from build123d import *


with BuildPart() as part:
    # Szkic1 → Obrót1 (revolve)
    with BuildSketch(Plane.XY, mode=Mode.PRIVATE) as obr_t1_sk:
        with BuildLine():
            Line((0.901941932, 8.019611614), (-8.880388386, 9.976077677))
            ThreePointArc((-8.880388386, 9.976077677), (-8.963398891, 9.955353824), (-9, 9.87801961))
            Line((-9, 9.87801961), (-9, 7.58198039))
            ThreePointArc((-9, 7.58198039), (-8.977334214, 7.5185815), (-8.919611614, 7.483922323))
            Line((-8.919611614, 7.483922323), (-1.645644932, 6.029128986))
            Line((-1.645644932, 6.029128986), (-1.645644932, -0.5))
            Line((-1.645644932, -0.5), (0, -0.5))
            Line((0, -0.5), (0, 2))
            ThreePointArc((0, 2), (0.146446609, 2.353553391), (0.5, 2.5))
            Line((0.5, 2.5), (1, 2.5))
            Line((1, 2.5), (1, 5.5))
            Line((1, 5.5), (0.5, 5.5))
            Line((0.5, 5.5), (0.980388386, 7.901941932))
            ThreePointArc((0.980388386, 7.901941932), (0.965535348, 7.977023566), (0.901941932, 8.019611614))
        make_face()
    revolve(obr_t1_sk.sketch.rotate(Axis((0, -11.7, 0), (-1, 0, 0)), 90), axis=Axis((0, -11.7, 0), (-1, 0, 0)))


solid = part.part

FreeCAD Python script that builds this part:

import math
import FreeCAD as App
import Part
import Sketcher
from FreeCAD import Vector

doc = App.newDocument("Part")
params = doc.addObject("Spreadsheet::Sheet", "Params")
for row, (alias, value) in enumerate([
    ("sketch1_radius", "0.1 mm"),
    ("sketch1_radius2", "0.5 mm"),
    ("sketch1_width", "10 mm"),
    ("sketch1_height", "3 mm"),
    ("sketch1_width2", "0.5 mm"),
    ("revolution_angle", "360 deg"),
], start=1):
    params.set(f"A{row}", alias)
    params.set(f"B{row}", "=" + value)
    params.setAlias(f"B{row}", alias)

body = doc.addObject("PartDesign::Body", "Body")

# Sketch on XY plane
sketch1 = body.newObject("Sketcher::SketchObject", "Sketch")
sketch1.AttachmentSupport = (doc.getObject("XY_Plane"), [""])
sketch1.MapMode = "FlatFace"
sketch1.addGeometry([
    Part.LineSegment(Vector(0.9, 8.02, 0), Vector(-8.88, 9.98, 0)),  # 0
    Part.ArcOfCircle(Part.Circle(Vector(-8.9, 9.88, 0), Vector(0, 0, 1), 0.1), math.radians(79), math.radians(180)),  # 1
    Part.LineSegment(Vector(-9, 9.88, 0), Vector(-9, 7.58, 0)),  # 2
    Part.ArcOfCircle(Part.Circle(Vector(-8.9, 7.58, 0), Vector(0, 0, 1), 0.1), math.radians(-180), math.radians(-101)),  # 3
    Part.LineSegment(Vector(-8.92, 7.48, 0), Vector(-1.65, 6.03, 0)),  # 4
    Part.LineSegment(Vector(-1.65, 6.03, 0), Vector(-1.65, -0.5, 0)),  # 5
    Part.LineSegment(Vector(-1.65, -0.5, 0), Vector(0, -0.5, 0)),  # 6
    Part.LineSegment(Vector(0, -0.5, 0), Vector(0, 2, 0)),  # 7
    Part.ArcOfCircle(Part.Circle(Vector(0.5, 2, 0), Vector(0, 0, 1), 0.5), math.radians(90), math.radians(180)),  # 8
    Part.LineSegment(Vector(0.5, 2.5, 0), Vector(1, 2.5, 0)),  # 9
    Part.LineSegment(Vector(1, 2.5, 0), Vector(1, 5.5, 0)),  # 10
    Part.LineSegment(Vector(1, 5.5, 0), Vector(0.5, 5.5, 0)),  # 11
    Part.LineSegment(Vector(0.5, 5.5, 0), Vector(0.98, 7.9, 0)),  # 12
    Part.ArcOfCircle(Part.Circle(Vector(0.88, 7.92, 0), Vector(0, 0, 1), 0.1), math.radians(-11), math.radians(79)),  # 13
], False)
sketch1.addGeometry(Part.LineSegment(Vector(1, -11.7, 0), Vector(-9, -11.7, 0)), True)  # axis
sketch1.addConstraint([
    Sketcher.Constraint("Tangent", 0, 2, 1, 1),
    Sketcher.Constraint("Tangent", 1, 2, 2, 1),
    Sketcher.Constraint("Tangent", 2, 2, 3, 1),
    Sketcher.Constraint("Tangent", 3, 2, 4, 1),
    Sketcher.Constraint("Coincident", 4, 2, 5, 1),
    Sketcher.Constraint("Coincident", 5, 2, 6, 1),
    Sketcher.Constraint("Coincident", 6, 2, 7, 1),
    Sketcher.Constraint("Tangent", 7, 2, 8, 2),
    Sketcher.Constraint("Tangent", 8, 1, 9, 1),
    Sketcher.Constraint("Coincident", 9, 2, 10, 1),
    Sketcher.Constraint("Coincident", 10, 2, 11, 1),
    Sketcher.Constraint("Coincident", 11, 2, 12, 1),
    Sketcher.Constraint("Tangent", 12, 2, 13, 1),
    Sketcher.Constraint("Tangent", 13, 2, 0, 1),
    Sketcher.Constraint("Vertical", 2),
    Sketcher.Constraint("Vertical", 5),
    Sketcher.Constraint("Horizontal", 6),
    Sketcher.Constraint("Vertical", 7),
    Sketcher.Constraint("Horizontal", 9),
    Sketcher.Constraint("Vertical", 10),
    Sketcher.Constraint("Horizontal", 11),
    Sketcher.Constraint("Horizontal", 14),
    Sketcher.Constraint("Equal", 1, 3),
    Sketcher.Constraint("Equal", 3, 13),
    Sketcher.Constraint("PointOnObject", 6, 2, -2),
    Sketcher.Constraint("Parallel", 0, 4),
    Sketcher.Constraint("Perpendicular", 4, 12),
    Sketcher.Constraint("Vertical", 8, 1, 11, 2),
    Sketcher.Constraint("Vertical", 10, 2, 14, 1),
    Sketcher.Constraint("Vertical", 2, 2, 14, 2),
    Sketcher.Constraint("Radius", 1, 0.1),
    Sketcher.Constraint("Radius", 8, 0.5),
    Sketcher.Constraint("DistanceX", 14, 2, 14, 1, 10.0),
    Sketcher.Constraint("DistanceY", 10, 1, 10, 2, 3.0),
    Sketcher.Constraint("DistanceX", 9, 1, 9, 2, 0.5),
    Sketcher.Constraint("DistanceY", 7, 1, 7, 2, 2.5),
    Sketcher.Constraint("DistanceY", -1, 1, 8, 3, 2.0),
    Sketcher.Constraint("DistanceY", 14, 1, -1, 1, 11.7),
    Sketcher.Constraint("DistanceY", 2, 2, 2, 1, 2.296039),
    Sketcher.Constraint("DistanceY", 5, 2, 5, 1, 6.529129),
    Sketcher.Constraint("Distance", 0, 9.976059),
    Sketcher.Constraint("Distance", 4, 7.41802),
])
sketch1.setExpression("Constraints[30]", "Params.sketch1_radius")
sketch1.setExpression("Constraints[31]", "Params.sketch1_radius2")
sketch1.setExpression("Constraints[32]", "Params.sketch1_width")
sketch1.setExpression("Constraints[33]", "Params.sketch1_height")
sketch1.setExpression("Constraints[34]", "Params.sketch1_width2")
revolution = body.newObject("PartDesign::Revolution", "Revolution")
revolution.Profile = sketch1
revolution.ReferenceAxis = (sketch1, ["Axis0"])
revolution.setExpression("Angle", "Params.revolution_angle")

doc.recompute()
